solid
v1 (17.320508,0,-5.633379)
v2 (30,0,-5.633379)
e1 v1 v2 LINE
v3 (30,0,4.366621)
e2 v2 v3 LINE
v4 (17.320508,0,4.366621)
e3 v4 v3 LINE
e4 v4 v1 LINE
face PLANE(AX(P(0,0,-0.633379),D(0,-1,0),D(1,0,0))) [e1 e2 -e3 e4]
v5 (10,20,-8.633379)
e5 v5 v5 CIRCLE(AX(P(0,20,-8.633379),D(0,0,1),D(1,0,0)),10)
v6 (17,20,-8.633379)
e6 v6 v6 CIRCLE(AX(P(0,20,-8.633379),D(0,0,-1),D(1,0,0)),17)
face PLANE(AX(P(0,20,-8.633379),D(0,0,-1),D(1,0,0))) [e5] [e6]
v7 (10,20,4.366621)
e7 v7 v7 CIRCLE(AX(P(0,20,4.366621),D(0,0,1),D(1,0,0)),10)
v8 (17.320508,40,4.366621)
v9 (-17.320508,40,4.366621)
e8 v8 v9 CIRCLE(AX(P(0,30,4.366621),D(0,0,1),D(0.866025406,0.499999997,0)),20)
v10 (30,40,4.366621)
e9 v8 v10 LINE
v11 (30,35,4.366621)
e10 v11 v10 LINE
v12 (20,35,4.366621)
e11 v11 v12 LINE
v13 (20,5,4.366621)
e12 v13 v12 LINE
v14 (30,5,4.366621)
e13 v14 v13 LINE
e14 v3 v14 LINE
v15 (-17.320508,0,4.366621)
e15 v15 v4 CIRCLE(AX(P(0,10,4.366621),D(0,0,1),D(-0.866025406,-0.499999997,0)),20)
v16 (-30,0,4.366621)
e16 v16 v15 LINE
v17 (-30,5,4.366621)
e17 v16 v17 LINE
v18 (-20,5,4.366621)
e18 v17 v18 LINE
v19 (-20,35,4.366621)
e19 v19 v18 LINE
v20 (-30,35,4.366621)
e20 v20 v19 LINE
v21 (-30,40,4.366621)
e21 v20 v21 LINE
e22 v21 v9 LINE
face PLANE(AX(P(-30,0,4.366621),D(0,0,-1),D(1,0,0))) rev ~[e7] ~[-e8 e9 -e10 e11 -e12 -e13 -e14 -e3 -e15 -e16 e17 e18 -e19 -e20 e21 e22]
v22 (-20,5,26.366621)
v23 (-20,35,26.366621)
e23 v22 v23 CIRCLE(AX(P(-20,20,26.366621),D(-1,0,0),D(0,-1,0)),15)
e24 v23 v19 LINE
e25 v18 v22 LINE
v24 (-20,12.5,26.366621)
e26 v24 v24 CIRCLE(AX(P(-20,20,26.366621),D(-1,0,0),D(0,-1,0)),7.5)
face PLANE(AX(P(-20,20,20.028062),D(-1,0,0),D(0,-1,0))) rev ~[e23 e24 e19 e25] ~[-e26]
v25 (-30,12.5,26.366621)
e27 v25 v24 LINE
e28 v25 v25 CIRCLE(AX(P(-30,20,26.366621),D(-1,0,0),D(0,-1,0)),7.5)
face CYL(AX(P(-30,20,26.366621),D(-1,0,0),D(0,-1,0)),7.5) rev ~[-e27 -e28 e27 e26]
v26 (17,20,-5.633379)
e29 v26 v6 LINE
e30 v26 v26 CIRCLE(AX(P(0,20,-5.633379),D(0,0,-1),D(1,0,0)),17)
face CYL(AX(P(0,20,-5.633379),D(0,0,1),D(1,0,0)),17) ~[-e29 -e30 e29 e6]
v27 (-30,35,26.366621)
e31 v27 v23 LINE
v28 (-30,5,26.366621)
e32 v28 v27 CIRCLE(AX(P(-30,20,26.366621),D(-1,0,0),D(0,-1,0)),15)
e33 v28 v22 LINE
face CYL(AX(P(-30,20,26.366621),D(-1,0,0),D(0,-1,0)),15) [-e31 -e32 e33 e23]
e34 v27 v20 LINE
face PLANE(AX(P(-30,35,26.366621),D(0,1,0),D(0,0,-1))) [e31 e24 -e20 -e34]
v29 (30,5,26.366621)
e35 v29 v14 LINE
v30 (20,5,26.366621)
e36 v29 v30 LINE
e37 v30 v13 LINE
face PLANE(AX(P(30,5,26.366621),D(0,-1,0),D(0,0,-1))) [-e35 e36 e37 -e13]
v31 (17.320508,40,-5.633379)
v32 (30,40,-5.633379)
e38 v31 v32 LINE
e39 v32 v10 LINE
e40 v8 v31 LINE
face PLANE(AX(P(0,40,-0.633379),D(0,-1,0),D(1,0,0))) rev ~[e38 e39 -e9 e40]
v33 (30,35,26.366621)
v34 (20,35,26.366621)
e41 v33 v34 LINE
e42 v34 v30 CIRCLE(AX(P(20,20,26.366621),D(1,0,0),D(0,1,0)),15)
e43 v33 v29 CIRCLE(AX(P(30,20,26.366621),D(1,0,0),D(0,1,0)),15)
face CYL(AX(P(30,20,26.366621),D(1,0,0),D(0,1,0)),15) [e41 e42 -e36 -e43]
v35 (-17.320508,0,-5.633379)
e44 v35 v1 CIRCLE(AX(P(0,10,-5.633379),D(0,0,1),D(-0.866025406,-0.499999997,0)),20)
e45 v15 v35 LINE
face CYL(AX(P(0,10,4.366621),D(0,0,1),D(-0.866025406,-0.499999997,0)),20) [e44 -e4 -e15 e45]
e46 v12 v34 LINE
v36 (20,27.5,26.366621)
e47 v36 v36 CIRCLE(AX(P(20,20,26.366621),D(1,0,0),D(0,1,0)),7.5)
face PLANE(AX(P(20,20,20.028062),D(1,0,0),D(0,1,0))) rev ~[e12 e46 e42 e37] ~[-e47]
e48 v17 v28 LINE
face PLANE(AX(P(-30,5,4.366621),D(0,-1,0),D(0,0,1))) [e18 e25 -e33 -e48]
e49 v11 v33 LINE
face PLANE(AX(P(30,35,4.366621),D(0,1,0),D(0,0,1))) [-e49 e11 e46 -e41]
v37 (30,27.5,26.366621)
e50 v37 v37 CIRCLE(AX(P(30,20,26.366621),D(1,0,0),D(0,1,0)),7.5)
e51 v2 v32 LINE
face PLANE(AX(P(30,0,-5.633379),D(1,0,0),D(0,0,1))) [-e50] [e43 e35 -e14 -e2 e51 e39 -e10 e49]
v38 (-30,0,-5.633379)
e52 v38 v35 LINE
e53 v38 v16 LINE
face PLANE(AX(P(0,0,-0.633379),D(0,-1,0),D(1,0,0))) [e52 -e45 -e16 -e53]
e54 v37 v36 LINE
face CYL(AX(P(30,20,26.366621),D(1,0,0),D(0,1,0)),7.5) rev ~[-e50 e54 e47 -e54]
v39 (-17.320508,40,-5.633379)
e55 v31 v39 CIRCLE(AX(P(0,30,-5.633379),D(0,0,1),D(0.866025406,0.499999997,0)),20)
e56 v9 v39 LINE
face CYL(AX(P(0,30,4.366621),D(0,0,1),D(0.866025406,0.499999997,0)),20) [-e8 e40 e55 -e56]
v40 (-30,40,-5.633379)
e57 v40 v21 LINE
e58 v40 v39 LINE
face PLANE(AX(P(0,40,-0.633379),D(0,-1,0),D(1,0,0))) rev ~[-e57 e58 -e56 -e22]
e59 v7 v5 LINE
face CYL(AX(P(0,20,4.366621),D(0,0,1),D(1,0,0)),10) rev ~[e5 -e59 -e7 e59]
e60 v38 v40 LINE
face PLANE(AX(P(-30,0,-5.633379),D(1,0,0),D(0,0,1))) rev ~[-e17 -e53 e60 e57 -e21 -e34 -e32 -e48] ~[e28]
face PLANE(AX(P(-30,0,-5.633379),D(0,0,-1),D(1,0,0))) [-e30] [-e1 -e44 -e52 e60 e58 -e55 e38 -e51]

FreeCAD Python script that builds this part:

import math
import FreeCAD as App
import Part
import Sketcher

V = App.Vector


def add_polygon(sketch, points):
    """Adds a closed chain of lines whose ends are joined by coincident constraints."""
    first, n = sketch.GeometryCount, len(points)
    for a, b in zip(points, points[1:] + points[:1]):
        sketch.addGeometry(Part.LineSegment(App.Vector(*a, 0), App.Vector(*b, 0)), False)
    for i in range(n):
        sketch.addConstraint(Sketcher.Constraint("Coincident", first + i, 2, first + (i + 1) % n, 1))

doc = App.newDocument("Part")
body = doc.addObject("PartDesign::Body", "Body")

# Sketch on XZ plane
sketch1 = doc.addObject("Sketcher::SketchObject", "Sketch")
body.addObject(sketch1)
sketch1.AttachmentSupport = (doc.XZ_Plane, [""])
sketch1.MapMode = "FlatFace"
add_polygon(sketch1, [(-30, 4), (-30, -6), (30, -6), (30, 4)])  # lines 0-3
sketch1.addConstraint([
    Sketcher.Constraint("Vertical", 0),
    Sketcher.Constraint("Horizontal", 1),
    Sketcher.Constraint("Vertical", 2),
    Sketcher.Constraint("Horizontal", 3),
    Sketcher.Constraint("DistanceX", 1, 1, 1, 2, 60.0),
    Sketcher.Constraint("DistanceY", 0, 2, 0, 1, 10.0),
    Sketcher.Constraint("DistanceX", 0, 2, -1, 1, 30.0),
    Sketcher.Constraint("DistanceY", 0, 2, -1, 1, 5.633379),
])
pad1 = doc.addObject("PartDesign::Pad", "Pad")
body.addObject(pad1)
pad1.Profile = sketch1
pad1.Length = 40
pad1.Reversed = True

# Sketch on YZ plane
sketch2 = doc.addObject("Sketcher::SketchObject", "Sketch001")
body.addObject(sketch2)
sketch2.AttachmentSupport = (doc.YZ_Plane, [""])
sketch2.MapMode = "FlatFace"
sketch2.AttachmentOffset = App.Placement(V(0, 0, 30), App.Rotation())
sketch2.addGeometry([
    Part.LineSegment(V(5, 26, 0), V(5, 4, 0)),  # 0
    Part.LineSegment(V(5, 4, 0), V(35, 4, 0)),  # 1
    Part.LineSegment(V(35, 4, 0), V(35, 26, 0)),  # 2
    Part.ArcOfCircle(Part.Circle(V(20, 26, 0), V(0, 0, 1), 15), math.radians(0), math.radians(180)),  # 3
    Part.Circle(V(20, 26, 0), V(0, 0, 1), 8),  # 4
], False)
sketch2.addConstraint([
    Sketcher.Constraint("Coincident", 0, 2, 1, 1),
    Sketcher.Constraint("Coincident", 1, 2, 2, 1),
    Sketcher.Constraint("Tangent", 2, 2, 3, 1),
    Sketcher.Constraint("Tangent", 3, 2, 0, 1),
    Sketcher.Constraint("Vertical", 0),
    Sketcher.Constraint("Horizontal", 1),
    Sketcher.Constraint("Vertical", 2),
    Sketcher.Constraint("Coincident", 4, 3, 3, 3),
    Sketcher.Constraint("Diameter", 4, 15.0),
    Sketcher.Constraint("Radius", 3, 15.0),
    Sketcher.Constraint("DistanceY", 0, 2, 0, 1, 22.0),
    Sketcher.Constraint("DistanceX", -1, 1, 3, 3, 20.0),
    Sketcher.Constraint("DistanceY", -1, 1, 3, 3, 26.366621),
])
pad2 = doc.addObject("PartDesign::Pad", "Pad001")
body.addObject(pad2)
pad2.Profile = sketch2
pad2.Length = 10
pad2.Reversed = True

# Sketch on YZ plane
sketch3 = doc.addObject("Sketcher::SketchObject", "Sketch002")
body.addObject(sketch3)
sketch3.AttachmentSupport = (doc.YZ_Plane, [""])
sketch3.MapMode = "FlatFace"
sketch3.AttachmentOffset = App.Placement(V(0, 0, -30), App.Rotation())
sketch3.addGeometry([
    Part.LineSegment(V(35, 4, 0), V(5, 4, 0)),  # 0
    Part.LineSegment(V(5, 4, 0), V(5, 26, 0)),  # 1
    Part.ArcOfCircle(Part.Circle(V(20, 26, 0), V(0, 0, 1), 15), math.radians(0), math.radians(180)),  # 2
    Part.LineSegment(V(35, 26, 0), V(35, 4, 0)),  # 3
    Part.Circle(V(20, 26, 0), V(0, 0, 1), 8),  # 4
], False)
sketch3.addConstraint([
    Sketcher.Constraint("Coincident", 0, 2, 1, 1),
    Sketcher.Constraint("Tangent", 1, 2, 2, 2),
    Sketcher.Constraint("Tangent", 2, 1, 3, 1),
    Sketcher.Constraint("Coincident", 3, 2, 0, 1),
    Sketcher.Constraint("Horizontal", 0),
    Sketcher.Constraint("Vertical", 1),
    Sketcher.Constraint("Vertical", 3),
    Sketcher.Constraint("Coincident", 4, 3, 2, 3),
    Sketcher.Constraint("Diameter", 4, 15.0),
    Sketcher.Constraint("Radius", 2, 15.0),
    Sketcher.Constraint("DistanceY", 1, 1, 1, 2, 22.0),
    Sketcher.Constraint("DistanceX", -1, 1, 2, 3, 20.0),
    Sketcher.Constraint("DistanceY", -1, 1, 2, 3, 26.366621),
])
pad3 = doc.addObject("PartDesign::Pad", "Pad002")
body.addObject(pad3)
pad3.Profile = sketch3
pad3.Length = 10

# Sketch on XY plane
sketch4 = doc.addObject("Sketcher::SketchObject", "Sketch003")
body.addObject(sketch4)
sketch4.AttachmentSupport = (doc.XY_Plane, [""])
sketch4.MapMode = "FlatFace"
sketch4.AttachmentOffset = App.Placement(V(0, 0, -5.633379), App.Rotation())
sketch4.addGeometry(Part.Circle(V(0, 20, 0), V(0, 0, 1), 17), False)
sketch4.addConstraint([
    Sketcher.Constraint("PointOnObject", 0, 3, -2),
    Sketcher.Constraint("Diameter", 0, 34.0),
    Sketcher.Constraint("DistanceY", -1, 1, 0, 3, 20.0),
])
pad4 = doc.addObject("PartDesign::Pad", "Pad003")
body.addObject(pad4)
pad4.Profile = sketch4
pad4.Length = 3
pad4.Reversed = True

# Sketch on XY plane
sketch5 = doc.addObject("Sketcher::SketchObject", "Sketch004")
body.addObject(sketch5)
sketch5.AttachmentSupport = (doc.XY_Plane, [""])
sketch5.MapMode = "FlatFace"
sketch5.AttachmentOffset = App.Placement(V(0, 0, 4.366621), App.Rotation())
sketch5.addGeometry(Part.Circle(V(0, 20, 0), V(0, 0, 1), 10), False)
sketch5.addConstraint([
    Sketcher.Constraint("PointOnObject", 0, 3, -2),
    Sketcher.Constraint("Diameter", 0, 20.0),
    Sketcher.Constraint("DistanceY", -1, 1, 0, 3, 20.0),
])
pocket1 = doc.addObject("PartDesign::Pocket", "Pocket")
body.addObject(pocket1)
pocket1.Profile = sketch5
pocket1.Length = 25

# Sketch on XY plane
sketch6 = doc.addObject("Sketcher::SketchObject", "Sketch005")
body.addObject(sketch6)
sketch6.AttachmentSupport = (doc.XY_Plane, [""])
sketch6.MapMode = "FlatFace"
sketch6.AttachmentOffset = App.Placement(V(0, 0, 4.366621), App.Rotation())
sketch6.addGeometry([
    Part.LineSegment(V(17, 0, 0), V(-17, 0, 0)),
    Part.ArcOfCircle(Part.Circle(V(0, 10, 0), V(0, 0, 1), 20), math.radians(-150), math.radians(-30)),
    Part.LineSegment(V(-17, 40, 0), V(17, 40, 0)),
    Part.ArcOfCircle(Part.Circle(V(0, 30, 0), V(0, 0, 1), 20), math.radians(30), math.radians(150)),
], False)
sketch6.addConstraint([
    Sketcher.Constraint("Coincident", 0, 1, 1, 2),
    Sketcher.Constraint("Coincident", 1, 1, 0, 2),
    Sketcher.Constraint("Coincident", 2, 1, 3, 2),
    Sketcher.Constraint("Coincident", 3, 1, 2, 2),
    Sketcher.Constraint("Horizontal", 0),
    Sketcher.Constraint("Horizontal", 2),
    Sketcher.Constraint("Equal", 1, 3),
    Sketcher.Constraint("Symmetric", 0, 1, 1, 1, -1, 1),
    Sketcher.Constraint("PointOnObject", 3, 3, -2),
    Sketcher.Constraint("Vertical", 1, 1, 2, 1),
    Sketcher.Constraint("Radius", 1, 20.0),
    Sketcher.Constraint("DistanceY", -1, 1, 1, 3, 10.0),
    Sketcher.Constraint("DistanceY", -1, 1, 3, 3, 30.0),
])
pad5 = doc.addObject("PartDesign::Pad", "Pad004")
body.addObject(pad5)
pad5.Profile = sketch6
pad5.Length = 10
pad5.Reversed = True

doc.recompute()
